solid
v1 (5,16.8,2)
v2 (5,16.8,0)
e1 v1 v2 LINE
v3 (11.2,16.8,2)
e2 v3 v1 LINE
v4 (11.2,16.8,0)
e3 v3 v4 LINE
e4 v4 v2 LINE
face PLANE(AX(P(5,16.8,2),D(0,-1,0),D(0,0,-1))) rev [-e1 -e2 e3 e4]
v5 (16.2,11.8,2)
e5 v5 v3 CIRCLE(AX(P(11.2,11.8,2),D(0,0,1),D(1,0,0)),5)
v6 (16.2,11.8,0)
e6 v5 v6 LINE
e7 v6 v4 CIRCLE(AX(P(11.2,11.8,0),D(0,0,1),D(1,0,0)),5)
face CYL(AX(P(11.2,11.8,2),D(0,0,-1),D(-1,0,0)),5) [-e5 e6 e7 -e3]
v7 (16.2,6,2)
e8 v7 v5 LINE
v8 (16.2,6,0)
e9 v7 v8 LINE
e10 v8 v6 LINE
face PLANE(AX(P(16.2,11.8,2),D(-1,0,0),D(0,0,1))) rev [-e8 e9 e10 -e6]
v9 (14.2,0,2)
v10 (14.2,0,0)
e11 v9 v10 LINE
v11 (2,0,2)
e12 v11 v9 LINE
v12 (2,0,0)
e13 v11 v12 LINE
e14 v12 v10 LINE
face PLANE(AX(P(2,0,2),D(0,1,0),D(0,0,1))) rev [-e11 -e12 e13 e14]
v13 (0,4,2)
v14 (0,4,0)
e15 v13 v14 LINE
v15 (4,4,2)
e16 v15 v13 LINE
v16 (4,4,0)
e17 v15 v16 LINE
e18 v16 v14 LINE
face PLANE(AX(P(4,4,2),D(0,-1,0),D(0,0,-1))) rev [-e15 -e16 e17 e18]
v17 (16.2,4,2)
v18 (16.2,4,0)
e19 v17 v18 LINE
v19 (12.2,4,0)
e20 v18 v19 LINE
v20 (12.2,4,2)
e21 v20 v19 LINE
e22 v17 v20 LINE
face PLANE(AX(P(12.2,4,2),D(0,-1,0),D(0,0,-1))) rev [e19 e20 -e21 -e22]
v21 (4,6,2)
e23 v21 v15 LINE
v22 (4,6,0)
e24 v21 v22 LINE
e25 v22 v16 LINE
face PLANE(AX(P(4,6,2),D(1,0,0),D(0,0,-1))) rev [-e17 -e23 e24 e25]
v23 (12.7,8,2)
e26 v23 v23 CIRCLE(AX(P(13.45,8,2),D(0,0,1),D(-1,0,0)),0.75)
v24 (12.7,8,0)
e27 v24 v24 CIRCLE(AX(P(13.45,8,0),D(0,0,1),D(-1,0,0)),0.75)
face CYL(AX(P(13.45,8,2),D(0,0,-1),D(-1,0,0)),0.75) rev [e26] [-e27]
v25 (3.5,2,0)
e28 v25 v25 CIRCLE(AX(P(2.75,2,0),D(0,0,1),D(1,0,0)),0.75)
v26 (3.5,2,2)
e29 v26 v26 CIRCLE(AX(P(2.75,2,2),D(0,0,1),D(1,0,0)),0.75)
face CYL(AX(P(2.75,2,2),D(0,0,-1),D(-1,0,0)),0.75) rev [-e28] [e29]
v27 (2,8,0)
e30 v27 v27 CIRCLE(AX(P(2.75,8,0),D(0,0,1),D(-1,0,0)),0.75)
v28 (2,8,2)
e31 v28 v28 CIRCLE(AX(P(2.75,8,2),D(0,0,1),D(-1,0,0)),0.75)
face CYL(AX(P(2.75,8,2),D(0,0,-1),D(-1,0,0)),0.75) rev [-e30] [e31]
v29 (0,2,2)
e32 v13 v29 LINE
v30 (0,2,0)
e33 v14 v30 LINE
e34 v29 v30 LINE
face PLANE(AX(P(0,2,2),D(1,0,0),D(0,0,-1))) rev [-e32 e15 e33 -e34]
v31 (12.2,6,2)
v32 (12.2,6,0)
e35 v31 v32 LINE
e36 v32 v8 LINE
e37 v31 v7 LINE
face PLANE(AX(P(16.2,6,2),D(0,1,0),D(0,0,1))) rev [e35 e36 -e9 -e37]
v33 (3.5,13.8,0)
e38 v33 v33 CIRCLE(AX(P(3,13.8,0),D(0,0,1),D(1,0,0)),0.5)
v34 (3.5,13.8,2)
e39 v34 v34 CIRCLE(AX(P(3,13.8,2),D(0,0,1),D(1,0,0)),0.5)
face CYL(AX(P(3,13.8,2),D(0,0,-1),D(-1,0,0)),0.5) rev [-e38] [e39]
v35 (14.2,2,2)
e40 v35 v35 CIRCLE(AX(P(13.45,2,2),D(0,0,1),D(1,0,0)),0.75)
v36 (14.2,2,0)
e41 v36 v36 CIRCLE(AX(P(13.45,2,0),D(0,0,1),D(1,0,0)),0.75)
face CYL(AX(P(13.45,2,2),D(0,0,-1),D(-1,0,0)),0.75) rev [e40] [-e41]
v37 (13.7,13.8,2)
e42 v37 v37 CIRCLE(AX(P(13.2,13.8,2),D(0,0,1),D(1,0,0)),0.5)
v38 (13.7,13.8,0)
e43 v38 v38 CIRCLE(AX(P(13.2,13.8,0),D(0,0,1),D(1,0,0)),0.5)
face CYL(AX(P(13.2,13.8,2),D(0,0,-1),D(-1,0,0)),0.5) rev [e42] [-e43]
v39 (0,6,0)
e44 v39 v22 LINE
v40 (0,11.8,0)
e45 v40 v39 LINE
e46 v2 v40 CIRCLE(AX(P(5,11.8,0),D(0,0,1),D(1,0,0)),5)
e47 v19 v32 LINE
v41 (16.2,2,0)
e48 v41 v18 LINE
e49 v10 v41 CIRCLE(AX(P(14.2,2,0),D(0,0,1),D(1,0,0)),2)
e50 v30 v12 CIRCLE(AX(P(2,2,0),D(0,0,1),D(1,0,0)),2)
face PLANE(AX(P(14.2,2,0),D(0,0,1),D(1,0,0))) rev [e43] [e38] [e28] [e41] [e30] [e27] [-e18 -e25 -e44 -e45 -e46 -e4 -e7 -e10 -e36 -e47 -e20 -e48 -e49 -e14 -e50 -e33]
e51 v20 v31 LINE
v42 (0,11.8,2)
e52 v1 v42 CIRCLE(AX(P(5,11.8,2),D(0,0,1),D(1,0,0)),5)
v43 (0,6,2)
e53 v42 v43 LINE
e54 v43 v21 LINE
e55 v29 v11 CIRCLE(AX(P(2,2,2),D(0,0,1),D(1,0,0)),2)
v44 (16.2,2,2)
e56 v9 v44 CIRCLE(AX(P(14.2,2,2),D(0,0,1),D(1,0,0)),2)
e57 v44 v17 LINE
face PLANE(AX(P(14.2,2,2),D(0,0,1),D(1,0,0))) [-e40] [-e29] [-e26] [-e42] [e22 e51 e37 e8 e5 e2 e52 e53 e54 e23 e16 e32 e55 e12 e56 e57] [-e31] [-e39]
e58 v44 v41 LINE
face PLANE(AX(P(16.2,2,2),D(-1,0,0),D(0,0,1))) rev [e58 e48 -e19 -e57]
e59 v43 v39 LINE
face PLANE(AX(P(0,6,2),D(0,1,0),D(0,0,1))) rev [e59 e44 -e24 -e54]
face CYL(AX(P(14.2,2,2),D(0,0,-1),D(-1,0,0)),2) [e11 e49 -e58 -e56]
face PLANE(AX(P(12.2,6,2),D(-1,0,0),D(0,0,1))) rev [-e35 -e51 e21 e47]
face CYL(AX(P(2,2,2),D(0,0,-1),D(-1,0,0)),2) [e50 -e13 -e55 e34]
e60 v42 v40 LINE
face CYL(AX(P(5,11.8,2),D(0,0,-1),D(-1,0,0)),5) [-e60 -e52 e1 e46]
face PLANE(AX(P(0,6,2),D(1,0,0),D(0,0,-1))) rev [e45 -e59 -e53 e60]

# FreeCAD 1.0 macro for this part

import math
import FreeCAD as App
import Part
import Sketcher
Q = App.Units.Quantity

doc = App.newDocument("Part")
body = doc.addObject("PartDesign::Body", "Body")

# Sketch on XY plane
sketch1 = body.newObject("Sketcher::SketchObject", "Sketch")
sketch1.AttachmentSupport = (doc.getObject("XY_Plane"), [""])
sketch1.MapMode = "FlatFace"
sketch1.addGeometry([
    Part.LineSegment(App.Vector(0, 11.8, 0), App.Vector(0, 6, 0)),  # 0
    Part.LineSegment(App.Vector(0, 6, 0), App.Vector(4, 6, 0)),  # 1
    Part.LineSegment(App.Vector(4, 6, 0), App.Vector(4, 4, 0)),  # 2
    Part.LineSegment(App.Vector(4, 4, 0), App.Vector(0, 4, 0)),  # 3
    Part.LineSegment(App.Vector(0, 4, 0), App.Vector(0, 2, 0)),  # 4
    Part.ArcOfCircle(Part.Circle(App.Vector(2, 2, 0), App.Vector(0, 0, 1), 2), math.radians(-180), math.radians(-90)),  # 5
    Part.LineSegment(App.Vector(2, 0, 0), App.Vector(14.2, 0, 0)),  # 6
    Part.ArcOfCircle(Part.Circle(App.Vector(14.2, 2, 0), App.Vector(0, 0, 1), 2), math.radians(-90), math.radians(0)),  # 7
    Part.LineSegment(App.Vector(16.2, 2, 0), App.Vector(16.2, 4, 0)),  # 8
    Part.LineSegment(App.Vector(16.2, 4, 0), App.Vector(12.2, 4, 0)),  # 9
    Part.LineSegment(App.Vector(12.2, 4, 0), App.Vector(12.2, 6, 0)),  # 10
    Part.LineSegment(App.Vector(12.2, 6, 0), App.Vector(16.2, 6, 0)),  # 11
    Part.LineSegment(App.Vector(16.2, 6, 0), App.Vector(16.2, 11.8, 0)),  # 12
    Part.ArcOfCircle(Part.Circle(App.Vector(11.2, 11.8, 0), App.Vector(0, 0, 1), 5), math.radians(0), math.radians(90)),  # 13
    Part.LineSegment(App.Vector(11.2, 16.8, 0), App.Vector(5, 16.8, 0)),  # 14
    Part.ArcOfCircle(Part.Circle(App.Vector(5, 11.8, 0), App.Vector(0, 0, 1), 5), math.radians(90), math.radians(180)),  # 15
    Part.Circle(App.Vector(13.45, 2, 0), App.Vector(0, 0, 1), 0.75),  # 16
    Part.Circle(App.Vector(2.75, 2, 0), App.Vector(0, 0, 1), 0.75),  # 17
    Part.Circle(App.Vector(13.45, 8, 0), App.Vector(0, 0, 1), 0.75),  # 18
    Part.Circle(App.Vector(13.2, 13.8, 0), App.Vector(0, 0, 1), 0.5),  # 19
    Part.Circle(App.Vector(2.75, 8, 0), App.Vector(0, 0, 1), 0.75),  # 20
    Part.Circle(App.Vector(3, 13.8, 0), App.Vector(0, 0, 1), 0.5),  # 21
], False)
sketch1.addConstraint([
    Sketcher.Constraint("Coincident", 0, 2, 1, 1),
    Sketcher.Constraint("Coincident", 1, 2, 2, 1),
    Sketcher.Constraint("Coincident", 2, 2, 3, 1),
    Sketcher.Constraint("Coincident", 3, 2, 4, 1),
    Sketcher.Constraint("Tangent", 4, 2, 5, 1),
    Sketcher.Constraint("Tangent", 5, 2, 6, 1),
    Sketcher.Constraint("Tangent", 6, 2, 7, 1),
    Sketcher.Constraint("Tangent", 7, 2, 8, 1),
    Sketcher.Constraint("Coincident", 8, 2, 9, 1),
    Sketcher.Constraint("Coincident", 9, 2, 10, 1),
    Sketcher.Constraint("Coincident", 10, 2, 11, 1),
    Sketcher.Constraint("Coincident", 11, 2, 12, 1),
    Sketcher.Constraint("Tangent", 12, 2, 13, 1),
    Sketcher.Constraint("Tangent", 13, 2, 14, 1),
    Sketcher.Constraint("Tangent", 14, 2, 15, 1),
    Sketcher.Constraint("Tangent", 15, 2, 0, 1),
    Sketcher.Constraint("Vertical", 0),
    Sketcher.Constraint("Horizontal", 1),
    Sketcher.Constraint("Vertical", 2),
    Sketcher.Constraint("Horizontal", 3),
    Sketcher.Constraint("Vertical", 4),
    Sketcher.Constraint("Horizontal", 6),
    Sketcher.Constraint("Vertical", 8),
    Sketcher.Constraint("Horizontal", 9),
    Sketcher.Constraint("Vertical", 10),
    Sketcher.Constraint("Horizontal", 11),
    Sketcher.Constraint("Vertical", 12),
    Sketcher.Constraint("Horizontal", 14),
    Sketcher.Constraint("Equal", 5, 7),
    Sketcher.Constraint("Equal", 13, 15),
    Sketcher.Constraint("Equal", 16, 17),
    Sketcher.Constraint("Equal", 17, 18),
    Sketcher.Constraint("Equal", 18, 20),
    Sketcher.Constraint("Equal", 19, 21),
    Sketcher.Constraint("PointOnObject", 0, 2, -2),
    Sketcher.Constraint("PointOnObject", 3, 2, -2),
    Sketcher.Constraint("PointOnObject", 5, 2, -1),
    Sketcher.Constraint("Horizontal", 7, 3, 16, 3),
    Sketcher.Constraint("Horizontal", 16, 3, 17, 3),
    Sketcher.Constraint("Horizontal", 18, 3, 20, 3),
    Sketcher.Constraint("Horizontal", 19, 3, 21, 3),
    Sketcher.Constraint("Horizontal", 3, 2, 8, 2),
    Sketcher.Constraint("Horizontal", 1, 2, 10, 2),
    Sketcher.Constraint("Vertical", 16, 3, 18, 3),
    Sketcher.Constraint("Vertical", 17, 3, 20, 3),
    Sketcher.Constraint("Vertical", 8, 2, 11, 2),
    Sketcher.Constraint("Equal", 3, 9),
    Sketcher.Constraint("Equal", 2, 4),
    Sketcher.Constraint("Diameter", 19, Q("1 mm")),
    Sketcher.Constraint("Radius", 5, Q("2 mm")),
    Sketcher.Constraint("Radius", 13, Q("5 mm")),
    Sketcher.Constraint("Diameter", 16, Q("1.5 mm")),
    Sketcher.Constraint("DistanceX", 1, 1, 1, 2, Q("4 mm")),
    Sketcher.Constraint("DistanceY", 2, 2, 2, 1, Q("2 mm")),
    Sketcher.Constraint("DistanceX", 6, 1, 6, 2, Q("12.2 mm")),
    Sketcher.Constraint("DistanceY", 0, 2, 0, 1, Q("5.8 mm")),
    Sketcher.Constraint("DistanceY", -1, 1, 18, 3, Q("8 mm")),
    Sketcher.Constraint("DistanceX", -1, 1, 21, 3, Q("3 mm")),
    Sketcher.Constraint("DistanceX", 13, 3, 19, 3, Q("2 mm")),
    Sketcher.Constraint("DistanceY", 13, 3, 19, 3, Q("2 mm")),
    Sketcher.Constraint("DistanceX", 17, 3, 16, 3, Q("10.7 mm")),
    Sketcher.Constraint("DistanceX", -1, 1, 16, 3, Q("13.45 mm")),
])
pad1 = body.newObject("PartDesign::Pad", "Pad")
pad1.Profile = sketch1
pad1.Length = 2

doc.recompute()
